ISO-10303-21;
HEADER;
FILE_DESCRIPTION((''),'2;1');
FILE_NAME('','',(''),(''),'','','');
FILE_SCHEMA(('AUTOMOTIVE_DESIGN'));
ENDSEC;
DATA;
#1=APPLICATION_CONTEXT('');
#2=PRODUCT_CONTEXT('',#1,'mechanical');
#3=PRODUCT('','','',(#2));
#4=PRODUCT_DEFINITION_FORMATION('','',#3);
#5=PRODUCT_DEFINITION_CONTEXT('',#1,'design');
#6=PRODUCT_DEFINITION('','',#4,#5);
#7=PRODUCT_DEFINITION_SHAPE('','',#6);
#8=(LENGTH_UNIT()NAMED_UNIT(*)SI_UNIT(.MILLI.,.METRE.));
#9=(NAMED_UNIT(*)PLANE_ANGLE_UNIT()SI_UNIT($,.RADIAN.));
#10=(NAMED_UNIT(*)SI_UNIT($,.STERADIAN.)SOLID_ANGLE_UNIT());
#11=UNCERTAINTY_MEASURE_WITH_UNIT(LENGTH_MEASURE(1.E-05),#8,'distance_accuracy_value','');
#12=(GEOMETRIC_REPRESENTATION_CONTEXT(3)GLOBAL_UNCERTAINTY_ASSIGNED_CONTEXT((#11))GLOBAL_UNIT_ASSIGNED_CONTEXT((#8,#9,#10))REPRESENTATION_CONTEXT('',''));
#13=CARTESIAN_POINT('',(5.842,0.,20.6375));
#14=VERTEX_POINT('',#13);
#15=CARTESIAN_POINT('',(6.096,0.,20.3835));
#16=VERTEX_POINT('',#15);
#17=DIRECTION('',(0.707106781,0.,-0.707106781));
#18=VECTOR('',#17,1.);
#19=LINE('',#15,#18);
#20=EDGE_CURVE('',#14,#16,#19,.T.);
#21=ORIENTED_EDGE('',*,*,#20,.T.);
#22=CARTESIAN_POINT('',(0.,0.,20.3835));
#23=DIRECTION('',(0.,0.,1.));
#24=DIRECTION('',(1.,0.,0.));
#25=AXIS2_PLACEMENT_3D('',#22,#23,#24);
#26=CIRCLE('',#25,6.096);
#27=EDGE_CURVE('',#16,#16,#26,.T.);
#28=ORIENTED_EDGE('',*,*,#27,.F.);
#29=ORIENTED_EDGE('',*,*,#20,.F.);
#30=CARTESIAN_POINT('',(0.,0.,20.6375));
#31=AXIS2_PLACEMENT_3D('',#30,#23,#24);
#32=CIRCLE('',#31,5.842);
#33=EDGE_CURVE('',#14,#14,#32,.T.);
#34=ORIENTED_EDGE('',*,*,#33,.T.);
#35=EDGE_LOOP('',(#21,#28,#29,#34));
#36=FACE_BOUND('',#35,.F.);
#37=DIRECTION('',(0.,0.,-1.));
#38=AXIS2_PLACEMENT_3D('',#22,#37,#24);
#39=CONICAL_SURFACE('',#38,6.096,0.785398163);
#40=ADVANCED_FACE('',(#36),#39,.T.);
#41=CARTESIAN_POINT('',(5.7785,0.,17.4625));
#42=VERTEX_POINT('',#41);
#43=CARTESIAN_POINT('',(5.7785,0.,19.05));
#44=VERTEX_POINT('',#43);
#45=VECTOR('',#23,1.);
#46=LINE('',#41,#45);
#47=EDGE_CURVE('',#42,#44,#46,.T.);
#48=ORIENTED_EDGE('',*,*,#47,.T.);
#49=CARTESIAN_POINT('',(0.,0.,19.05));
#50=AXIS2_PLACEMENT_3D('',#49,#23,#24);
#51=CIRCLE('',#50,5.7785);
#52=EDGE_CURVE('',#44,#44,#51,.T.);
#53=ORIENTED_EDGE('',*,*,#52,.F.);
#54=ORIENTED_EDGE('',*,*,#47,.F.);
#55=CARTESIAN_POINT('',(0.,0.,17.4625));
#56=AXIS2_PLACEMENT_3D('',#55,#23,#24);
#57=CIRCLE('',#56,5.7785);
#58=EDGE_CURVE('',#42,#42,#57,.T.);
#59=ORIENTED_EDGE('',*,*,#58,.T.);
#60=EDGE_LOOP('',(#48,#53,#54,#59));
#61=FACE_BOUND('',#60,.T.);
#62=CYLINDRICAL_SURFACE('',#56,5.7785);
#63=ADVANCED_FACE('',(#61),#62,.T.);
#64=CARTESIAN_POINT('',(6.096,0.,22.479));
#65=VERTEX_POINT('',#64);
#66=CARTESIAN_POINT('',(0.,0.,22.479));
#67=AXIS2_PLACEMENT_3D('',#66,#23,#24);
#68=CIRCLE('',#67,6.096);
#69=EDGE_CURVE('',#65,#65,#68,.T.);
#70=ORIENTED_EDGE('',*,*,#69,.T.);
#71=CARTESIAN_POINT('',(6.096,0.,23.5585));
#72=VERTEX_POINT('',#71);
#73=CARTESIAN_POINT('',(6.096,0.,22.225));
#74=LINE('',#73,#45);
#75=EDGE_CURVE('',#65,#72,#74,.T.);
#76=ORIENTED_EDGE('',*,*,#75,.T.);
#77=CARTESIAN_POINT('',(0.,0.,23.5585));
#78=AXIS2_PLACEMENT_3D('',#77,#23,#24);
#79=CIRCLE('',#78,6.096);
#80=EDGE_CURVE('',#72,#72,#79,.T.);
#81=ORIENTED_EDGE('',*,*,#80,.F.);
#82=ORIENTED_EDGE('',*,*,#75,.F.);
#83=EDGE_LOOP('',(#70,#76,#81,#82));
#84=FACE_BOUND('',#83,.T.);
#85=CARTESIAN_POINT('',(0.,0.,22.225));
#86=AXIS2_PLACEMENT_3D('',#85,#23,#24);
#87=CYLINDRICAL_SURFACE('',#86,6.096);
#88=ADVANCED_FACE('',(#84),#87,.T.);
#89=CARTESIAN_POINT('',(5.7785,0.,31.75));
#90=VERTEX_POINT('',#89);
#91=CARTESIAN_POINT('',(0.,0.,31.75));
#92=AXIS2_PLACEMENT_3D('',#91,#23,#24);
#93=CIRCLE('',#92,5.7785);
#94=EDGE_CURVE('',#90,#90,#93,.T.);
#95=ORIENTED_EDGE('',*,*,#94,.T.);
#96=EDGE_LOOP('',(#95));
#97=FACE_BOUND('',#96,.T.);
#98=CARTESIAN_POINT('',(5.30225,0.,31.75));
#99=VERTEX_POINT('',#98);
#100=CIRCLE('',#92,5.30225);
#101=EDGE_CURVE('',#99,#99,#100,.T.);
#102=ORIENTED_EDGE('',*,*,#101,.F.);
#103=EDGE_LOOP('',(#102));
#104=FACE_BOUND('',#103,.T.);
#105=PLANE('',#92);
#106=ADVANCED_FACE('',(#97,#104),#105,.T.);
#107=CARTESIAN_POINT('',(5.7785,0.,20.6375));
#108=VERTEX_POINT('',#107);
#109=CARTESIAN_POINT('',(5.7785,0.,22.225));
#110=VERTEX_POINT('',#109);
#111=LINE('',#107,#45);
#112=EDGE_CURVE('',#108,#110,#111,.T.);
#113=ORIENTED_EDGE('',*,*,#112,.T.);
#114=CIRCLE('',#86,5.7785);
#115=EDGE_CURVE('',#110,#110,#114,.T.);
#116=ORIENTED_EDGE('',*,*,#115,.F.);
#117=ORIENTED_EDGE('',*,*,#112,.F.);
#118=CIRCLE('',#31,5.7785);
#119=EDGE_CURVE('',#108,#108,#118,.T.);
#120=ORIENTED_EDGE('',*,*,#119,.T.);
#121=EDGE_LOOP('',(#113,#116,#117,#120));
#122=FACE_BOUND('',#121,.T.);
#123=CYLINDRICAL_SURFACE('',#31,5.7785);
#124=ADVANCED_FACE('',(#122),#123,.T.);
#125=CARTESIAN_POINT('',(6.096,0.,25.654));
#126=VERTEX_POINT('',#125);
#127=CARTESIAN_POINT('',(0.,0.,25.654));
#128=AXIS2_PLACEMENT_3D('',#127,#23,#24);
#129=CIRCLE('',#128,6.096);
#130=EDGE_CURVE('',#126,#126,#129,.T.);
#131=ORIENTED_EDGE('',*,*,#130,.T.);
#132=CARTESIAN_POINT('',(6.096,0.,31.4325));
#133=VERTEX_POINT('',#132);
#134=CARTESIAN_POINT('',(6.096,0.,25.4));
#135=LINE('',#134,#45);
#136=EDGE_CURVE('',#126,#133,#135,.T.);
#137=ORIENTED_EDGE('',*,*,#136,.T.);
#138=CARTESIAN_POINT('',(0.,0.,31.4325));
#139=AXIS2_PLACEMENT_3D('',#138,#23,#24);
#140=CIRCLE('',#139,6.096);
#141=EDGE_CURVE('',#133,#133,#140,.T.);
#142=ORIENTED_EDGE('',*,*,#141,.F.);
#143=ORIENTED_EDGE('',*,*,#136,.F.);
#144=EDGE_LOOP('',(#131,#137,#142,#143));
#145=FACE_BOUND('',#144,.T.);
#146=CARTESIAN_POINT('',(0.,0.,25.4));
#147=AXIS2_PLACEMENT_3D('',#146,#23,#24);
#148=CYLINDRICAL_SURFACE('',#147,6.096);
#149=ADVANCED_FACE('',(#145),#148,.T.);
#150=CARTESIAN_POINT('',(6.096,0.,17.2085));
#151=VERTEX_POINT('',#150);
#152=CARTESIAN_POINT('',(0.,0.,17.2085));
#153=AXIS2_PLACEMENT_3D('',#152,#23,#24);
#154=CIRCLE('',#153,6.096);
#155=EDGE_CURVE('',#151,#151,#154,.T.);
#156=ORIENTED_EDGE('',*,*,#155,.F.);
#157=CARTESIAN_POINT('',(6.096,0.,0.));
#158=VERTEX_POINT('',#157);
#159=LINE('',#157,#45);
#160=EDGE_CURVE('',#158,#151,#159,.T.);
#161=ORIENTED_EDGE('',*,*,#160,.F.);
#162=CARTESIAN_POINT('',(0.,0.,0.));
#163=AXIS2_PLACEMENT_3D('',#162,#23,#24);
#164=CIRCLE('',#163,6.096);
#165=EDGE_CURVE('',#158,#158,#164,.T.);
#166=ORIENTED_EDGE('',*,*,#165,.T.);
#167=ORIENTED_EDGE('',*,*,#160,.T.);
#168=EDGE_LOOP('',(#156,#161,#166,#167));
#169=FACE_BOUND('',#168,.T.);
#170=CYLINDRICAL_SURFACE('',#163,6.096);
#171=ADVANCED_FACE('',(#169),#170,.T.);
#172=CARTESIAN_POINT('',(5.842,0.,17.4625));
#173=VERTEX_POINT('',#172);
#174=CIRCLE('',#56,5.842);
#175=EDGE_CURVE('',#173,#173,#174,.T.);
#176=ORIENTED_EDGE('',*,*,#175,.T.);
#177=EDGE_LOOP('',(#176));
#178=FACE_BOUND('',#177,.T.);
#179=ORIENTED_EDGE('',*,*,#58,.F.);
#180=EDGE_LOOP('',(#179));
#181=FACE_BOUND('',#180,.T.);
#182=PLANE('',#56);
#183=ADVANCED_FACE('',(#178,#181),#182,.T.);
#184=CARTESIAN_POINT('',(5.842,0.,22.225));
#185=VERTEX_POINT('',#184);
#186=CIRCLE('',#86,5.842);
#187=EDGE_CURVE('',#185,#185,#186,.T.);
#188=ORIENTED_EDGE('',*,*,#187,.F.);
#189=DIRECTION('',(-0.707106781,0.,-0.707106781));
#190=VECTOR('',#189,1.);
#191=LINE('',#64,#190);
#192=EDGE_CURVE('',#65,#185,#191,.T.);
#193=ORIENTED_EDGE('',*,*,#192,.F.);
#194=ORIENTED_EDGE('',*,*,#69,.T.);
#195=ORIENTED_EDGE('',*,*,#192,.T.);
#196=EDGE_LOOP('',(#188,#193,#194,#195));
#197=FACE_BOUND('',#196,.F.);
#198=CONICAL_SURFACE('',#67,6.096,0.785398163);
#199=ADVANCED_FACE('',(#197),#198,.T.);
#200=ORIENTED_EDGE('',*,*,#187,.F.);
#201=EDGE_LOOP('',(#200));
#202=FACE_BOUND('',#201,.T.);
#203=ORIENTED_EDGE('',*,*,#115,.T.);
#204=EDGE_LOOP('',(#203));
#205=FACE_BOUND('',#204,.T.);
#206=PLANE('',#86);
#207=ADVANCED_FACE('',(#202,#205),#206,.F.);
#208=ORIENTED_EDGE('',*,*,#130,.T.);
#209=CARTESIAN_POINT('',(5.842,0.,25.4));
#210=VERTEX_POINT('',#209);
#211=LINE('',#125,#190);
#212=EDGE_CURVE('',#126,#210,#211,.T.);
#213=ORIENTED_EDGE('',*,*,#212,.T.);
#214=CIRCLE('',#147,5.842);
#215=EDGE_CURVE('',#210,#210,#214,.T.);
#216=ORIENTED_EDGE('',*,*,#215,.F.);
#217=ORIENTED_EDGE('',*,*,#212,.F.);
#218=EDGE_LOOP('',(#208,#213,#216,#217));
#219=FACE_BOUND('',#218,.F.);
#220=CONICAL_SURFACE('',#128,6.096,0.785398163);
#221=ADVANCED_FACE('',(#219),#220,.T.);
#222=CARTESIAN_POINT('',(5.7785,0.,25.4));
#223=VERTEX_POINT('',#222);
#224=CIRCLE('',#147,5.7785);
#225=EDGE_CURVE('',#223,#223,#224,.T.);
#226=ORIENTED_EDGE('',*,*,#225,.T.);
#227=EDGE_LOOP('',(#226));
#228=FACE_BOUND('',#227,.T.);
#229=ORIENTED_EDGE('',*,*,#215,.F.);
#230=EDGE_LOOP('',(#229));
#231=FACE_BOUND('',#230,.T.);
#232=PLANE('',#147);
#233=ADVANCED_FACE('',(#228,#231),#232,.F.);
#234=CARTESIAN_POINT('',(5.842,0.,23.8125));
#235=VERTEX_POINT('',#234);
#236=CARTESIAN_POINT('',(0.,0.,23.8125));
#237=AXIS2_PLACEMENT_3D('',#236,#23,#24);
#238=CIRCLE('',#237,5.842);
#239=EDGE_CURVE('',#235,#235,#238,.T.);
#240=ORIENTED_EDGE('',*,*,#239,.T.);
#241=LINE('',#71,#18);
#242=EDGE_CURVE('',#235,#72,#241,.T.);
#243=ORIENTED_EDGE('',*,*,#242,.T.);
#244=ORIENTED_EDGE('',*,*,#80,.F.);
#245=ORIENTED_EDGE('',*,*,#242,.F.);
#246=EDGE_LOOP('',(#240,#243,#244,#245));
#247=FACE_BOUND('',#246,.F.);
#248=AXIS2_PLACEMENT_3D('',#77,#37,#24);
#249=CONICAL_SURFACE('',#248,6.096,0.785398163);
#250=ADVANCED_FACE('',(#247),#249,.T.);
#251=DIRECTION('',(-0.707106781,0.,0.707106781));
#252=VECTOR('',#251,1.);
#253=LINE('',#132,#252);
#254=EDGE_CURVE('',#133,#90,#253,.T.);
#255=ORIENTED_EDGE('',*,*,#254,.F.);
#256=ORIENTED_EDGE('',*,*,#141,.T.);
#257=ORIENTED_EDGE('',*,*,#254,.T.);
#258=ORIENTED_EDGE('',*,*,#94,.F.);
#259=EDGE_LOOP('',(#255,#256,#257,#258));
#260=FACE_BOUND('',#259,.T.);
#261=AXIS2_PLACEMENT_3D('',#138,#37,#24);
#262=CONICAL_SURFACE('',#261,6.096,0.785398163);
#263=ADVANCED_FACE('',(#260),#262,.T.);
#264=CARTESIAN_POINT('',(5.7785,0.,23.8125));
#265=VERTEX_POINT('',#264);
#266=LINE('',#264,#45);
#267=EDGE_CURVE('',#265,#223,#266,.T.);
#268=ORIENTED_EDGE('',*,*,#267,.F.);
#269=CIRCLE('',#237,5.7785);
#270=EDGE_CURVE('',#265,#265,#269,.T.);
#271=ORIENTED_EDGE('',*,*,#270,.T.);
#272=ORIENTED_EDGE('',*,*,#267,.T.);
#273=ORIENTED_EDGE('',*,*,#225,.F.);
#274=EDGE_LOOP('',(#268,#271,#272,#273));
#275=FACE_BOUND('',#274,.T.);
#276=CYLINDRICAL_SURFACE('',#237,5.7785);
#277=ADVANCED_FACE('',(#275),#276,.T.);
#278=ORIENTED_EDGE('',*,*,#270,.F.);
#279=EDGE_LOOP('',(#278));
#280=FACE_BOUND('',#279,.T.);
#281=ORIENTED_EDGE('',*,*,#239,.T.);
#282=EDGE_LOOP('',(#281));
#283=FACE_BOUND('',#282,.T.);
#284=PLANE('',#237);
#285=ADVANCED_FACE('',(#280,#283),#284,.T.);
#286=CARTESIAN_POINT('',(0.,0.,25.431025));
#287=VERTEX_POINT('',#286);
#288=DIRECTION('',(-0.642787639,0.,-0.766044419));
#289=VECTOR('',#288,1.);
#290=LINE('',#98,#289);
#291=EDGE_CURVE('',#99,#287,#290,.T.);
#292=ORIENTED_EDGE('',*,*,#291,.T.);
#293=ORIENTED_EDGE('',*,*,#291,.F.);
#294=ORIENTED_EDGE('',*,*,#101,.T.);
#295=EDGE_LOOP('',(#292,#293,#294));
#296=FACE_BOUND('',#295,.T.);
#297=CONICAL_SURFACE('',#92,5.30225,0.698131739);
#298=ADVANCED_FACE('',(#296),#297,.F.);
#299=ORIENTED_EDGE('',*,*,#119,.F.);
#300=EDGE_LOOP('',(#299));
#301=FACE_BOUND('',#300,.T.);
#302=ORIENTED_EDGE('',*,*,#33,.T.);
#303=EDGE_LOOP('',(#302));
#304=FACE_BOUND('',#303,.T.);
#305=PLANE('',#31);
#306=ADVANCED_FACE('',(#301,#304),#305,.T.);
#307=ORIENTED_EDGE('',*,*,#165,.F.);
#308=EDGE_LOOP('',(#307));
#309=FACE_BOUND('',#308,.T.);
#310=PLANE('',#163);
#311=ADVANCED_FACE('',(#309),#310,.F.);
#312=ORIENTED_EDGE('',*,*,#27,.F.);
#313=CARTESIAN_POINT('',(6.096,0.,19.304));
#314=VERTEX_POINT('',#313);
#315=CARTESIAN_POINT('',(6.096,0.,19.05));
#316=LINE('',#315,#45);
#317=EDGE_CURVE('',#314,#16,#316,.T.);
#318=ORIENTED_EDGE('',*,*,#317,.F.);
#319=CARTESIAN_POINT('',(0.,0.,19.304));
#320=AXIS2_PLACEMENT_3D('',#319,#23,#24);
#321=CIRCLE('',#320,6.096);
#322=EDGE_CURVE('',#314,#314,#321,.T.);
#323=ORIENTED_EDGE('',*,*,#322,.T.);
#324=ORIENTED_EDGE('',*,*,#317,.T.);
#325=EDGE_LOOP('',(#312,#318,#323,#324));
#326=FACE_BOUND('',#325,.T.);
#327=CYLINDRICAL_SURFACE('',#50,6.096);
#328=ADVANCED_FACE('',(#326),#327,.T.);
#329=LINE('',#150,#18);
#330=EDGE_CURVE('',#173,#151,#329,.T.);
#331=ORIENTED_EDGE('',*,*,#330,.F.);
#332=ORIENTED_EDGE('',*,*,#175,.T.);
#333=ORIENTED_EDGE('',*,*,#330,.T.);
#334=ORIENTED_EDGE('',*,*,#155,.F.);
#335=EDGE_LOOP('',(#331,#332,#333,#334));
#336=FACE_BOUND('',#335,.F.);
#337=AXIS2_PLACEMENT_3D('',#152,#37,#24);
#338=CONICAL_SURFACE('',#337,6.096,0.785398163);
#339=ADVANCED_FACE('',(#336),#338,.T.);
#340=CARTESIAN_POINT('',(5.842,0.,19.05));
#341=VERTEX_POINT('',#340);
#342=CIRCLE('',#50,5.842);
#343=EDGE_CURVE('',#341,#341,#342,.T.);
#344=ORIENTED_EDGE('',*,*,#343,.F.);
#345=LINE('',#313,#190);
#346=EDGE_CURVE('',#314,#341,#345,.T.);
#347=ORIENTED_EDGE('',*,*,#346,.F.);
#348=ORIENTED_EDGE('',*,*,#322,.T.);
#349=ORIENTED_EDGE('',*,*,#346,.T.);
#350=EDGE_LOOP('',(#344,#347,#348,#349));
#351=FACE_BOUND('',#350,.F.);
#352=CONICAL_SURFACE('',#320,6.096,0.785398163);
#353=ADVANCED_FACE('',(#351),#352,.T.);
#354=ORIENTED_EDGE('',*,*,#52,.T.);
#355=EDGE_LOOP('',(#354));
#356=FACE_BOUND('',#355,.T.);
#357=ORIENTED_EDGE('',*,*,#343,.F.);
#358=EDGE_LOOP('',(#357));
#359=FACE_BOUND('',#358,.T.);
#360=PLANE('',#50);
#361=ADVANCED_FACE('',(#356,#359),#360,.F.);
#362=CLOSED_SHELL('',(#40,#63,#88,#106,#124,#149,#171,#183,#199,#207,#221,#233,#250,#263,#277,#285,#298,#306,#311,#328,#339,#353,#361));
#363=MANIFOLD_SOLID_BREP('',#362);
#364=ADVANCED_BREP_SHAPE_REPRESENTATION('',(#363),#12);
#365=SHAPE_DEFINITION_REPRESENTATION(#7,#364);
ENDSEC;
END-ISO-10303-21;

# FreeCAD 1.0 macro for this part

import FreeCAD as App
import Part
import Sketcher
from FreeCAD import Vector
Q = App.Units.Quantity


def edges_at(feature, points):
    """Names of the edges that pass closest to the given points."""
    edges = feature.Shape.Edges
    near = lambda p: min(range(len(edges)), key=lambda i: edges[i].distToShape(Part.Vertex(*p))[0])
    return sorted({f"Edge{near(p) + 1}" for p in points})


def add_polygon(sketch, points):
    """Adds a closed chain of lines whose ends are joined by coincident constraints."""
    first, n = sketch.GeometryCount, len(points)
    for a, b in zip(points, points[1:] + points[:1]):
        sketch.addGeometry(Part.LineSegment(App.Vector(*a, 0), App.Vector(*b, 0)), False)
    for i in range(n):
        sketch.addConstraint(Sketcher.Constraint("Coincident", first + i, 2, first + (i + 1) % n, 1))

doc = App.newDocument("Part")
body = doc.addObject("PartDesign::Body", "Body")

# Sketch on XZ plane
sketch1 = body.newObject("Sketcher::SketchObject", "Sketch")
sketch1.AttachmentSupport = (doc.getObject("XZ_Plane"), [""])
sketch1.MapMode = "FlatFace"
add_polygon(sketch1, [(6.1, 25.4), (6.1, 31.75), (5.3, 31.75), (0, 25.43), (0, 0), (6.1, 0), (6.1, 17.46), (5.78, 17.46), (5.78, 19.05), (6.1, 19.05), (6.1, 20.64), (5.78, 20.64), (5.78, 22.23), (6.1, 22.23), (6.1, 23.81), (5.78, 23.81), (5.78, 25.4)])  # lines 0-16
sketch1.addConstraint([
    Sketcher.Constraint("Vertical", 0),
    Sketcher.Constraint("Horizontal", 1),
    Sketcher.Constraint("Vertical", 3),
    Sketcher.Constraint("Horizontal", 4),
    Sketcher.Constraint("Vertical", 5),
    Sketcher.Constraint("Horizontal", 6),
    Sketcher.Constraint("Vertical", 7),
    Sketcher.Constraint("Horizontal", 8),
    Sketcher.Constraint("Vertical", 9),
    Sketcher.Constraint("Horizontal", 10),
    Sketcher.Constraint("Vertical", 11),
    Sketcher.Constraint("Horizontal", 12),
    Sketcher.Constraint("Vertical", 13),
    Sketcher.Constraint("Horizontal", 14),
    Sketcher.Constraint("Vertical", 15),
    Sketcher.Constraint("Horizontal", 16),
    Sketcher.Constraint("Coincident", 3, 2, -1, 1),
    Sketcher.Constraint("Vertical", 0, 2, 4, 2),
    Sketcher.Constraint("Vertical", 5, 2, 8, 2),
    Sketcher.Constraint("Vertical", 7, 2, 10, 2),
    Sketcher.Constraint("Vertical", 9, 2, 12, 2),
    Sketcher.Constraint("Vertical", 11, 2, 14, 2),
    Sketcher.Constraint("Equal", 7, 9),
    Sketcher.Constraint("Equal", 9, 11),
    Sketcher.Constraint("Equal", 11, 13),
    Sketcher.Constraint("Equal", 13, 15),
    Sketcher.Constraint("DistanceY", -1, 1, 15, 2, Q("1 in")),
    Sketcher.Constraint("Angle", 2, Q("-130.000002 deg")),
    Sketcher.Constraint("DistanceX", 4, 1, 4, 2, Q("0.24 in")),
    Sketcher.Constraint("DistanceY", 0, 1, 0, 2, Q("0.25 in")),
    Sketcher.Constraint("DistanceY", 7, 2, 0, 2, Q("0.5 in")),
    Sketcher.Constraint("DistanceX", 1, 2, 1, 1, Q("0.03125 in")),
    Sketcher.Constraint("DistanceX", 6, 2, 6, 1, Q("0.0125 in")),
])
revolution = body.newObject("PartDesign::Revolution", "Revolution")
revolution.Profile = sketch1
revolution.ReferenceAxis = (sketch1, ["V_Axis"])
revolution.Angle = 360
doc.recompute()

chamfer = body.newObject("PartDesign::Chamfer", "Chamfer")
chamfer.Base = (revolution, edges_at(revolution, [(-6.096, 0, 31.75)]))
chamfer.Size = Q("0.0125 in")
doc.recompute()

chamfer2 = body.newObject("PartDesign::Chamfer", "Chamfer001")
chamfer2.Base = (chamfer, edges_at(chamfer, [
    (-6.096, 0, 25.4),
    (-6.096, 0, 23.812),
    (-6.096, 0, 22.225),
    (-6.096, 0, 20.637),
    (-6.096, 0, 19.05),
    (-6.096, 0, 17.462),
]))
chamfer2.Size = Q("0.01 in")

doc.recompute()
